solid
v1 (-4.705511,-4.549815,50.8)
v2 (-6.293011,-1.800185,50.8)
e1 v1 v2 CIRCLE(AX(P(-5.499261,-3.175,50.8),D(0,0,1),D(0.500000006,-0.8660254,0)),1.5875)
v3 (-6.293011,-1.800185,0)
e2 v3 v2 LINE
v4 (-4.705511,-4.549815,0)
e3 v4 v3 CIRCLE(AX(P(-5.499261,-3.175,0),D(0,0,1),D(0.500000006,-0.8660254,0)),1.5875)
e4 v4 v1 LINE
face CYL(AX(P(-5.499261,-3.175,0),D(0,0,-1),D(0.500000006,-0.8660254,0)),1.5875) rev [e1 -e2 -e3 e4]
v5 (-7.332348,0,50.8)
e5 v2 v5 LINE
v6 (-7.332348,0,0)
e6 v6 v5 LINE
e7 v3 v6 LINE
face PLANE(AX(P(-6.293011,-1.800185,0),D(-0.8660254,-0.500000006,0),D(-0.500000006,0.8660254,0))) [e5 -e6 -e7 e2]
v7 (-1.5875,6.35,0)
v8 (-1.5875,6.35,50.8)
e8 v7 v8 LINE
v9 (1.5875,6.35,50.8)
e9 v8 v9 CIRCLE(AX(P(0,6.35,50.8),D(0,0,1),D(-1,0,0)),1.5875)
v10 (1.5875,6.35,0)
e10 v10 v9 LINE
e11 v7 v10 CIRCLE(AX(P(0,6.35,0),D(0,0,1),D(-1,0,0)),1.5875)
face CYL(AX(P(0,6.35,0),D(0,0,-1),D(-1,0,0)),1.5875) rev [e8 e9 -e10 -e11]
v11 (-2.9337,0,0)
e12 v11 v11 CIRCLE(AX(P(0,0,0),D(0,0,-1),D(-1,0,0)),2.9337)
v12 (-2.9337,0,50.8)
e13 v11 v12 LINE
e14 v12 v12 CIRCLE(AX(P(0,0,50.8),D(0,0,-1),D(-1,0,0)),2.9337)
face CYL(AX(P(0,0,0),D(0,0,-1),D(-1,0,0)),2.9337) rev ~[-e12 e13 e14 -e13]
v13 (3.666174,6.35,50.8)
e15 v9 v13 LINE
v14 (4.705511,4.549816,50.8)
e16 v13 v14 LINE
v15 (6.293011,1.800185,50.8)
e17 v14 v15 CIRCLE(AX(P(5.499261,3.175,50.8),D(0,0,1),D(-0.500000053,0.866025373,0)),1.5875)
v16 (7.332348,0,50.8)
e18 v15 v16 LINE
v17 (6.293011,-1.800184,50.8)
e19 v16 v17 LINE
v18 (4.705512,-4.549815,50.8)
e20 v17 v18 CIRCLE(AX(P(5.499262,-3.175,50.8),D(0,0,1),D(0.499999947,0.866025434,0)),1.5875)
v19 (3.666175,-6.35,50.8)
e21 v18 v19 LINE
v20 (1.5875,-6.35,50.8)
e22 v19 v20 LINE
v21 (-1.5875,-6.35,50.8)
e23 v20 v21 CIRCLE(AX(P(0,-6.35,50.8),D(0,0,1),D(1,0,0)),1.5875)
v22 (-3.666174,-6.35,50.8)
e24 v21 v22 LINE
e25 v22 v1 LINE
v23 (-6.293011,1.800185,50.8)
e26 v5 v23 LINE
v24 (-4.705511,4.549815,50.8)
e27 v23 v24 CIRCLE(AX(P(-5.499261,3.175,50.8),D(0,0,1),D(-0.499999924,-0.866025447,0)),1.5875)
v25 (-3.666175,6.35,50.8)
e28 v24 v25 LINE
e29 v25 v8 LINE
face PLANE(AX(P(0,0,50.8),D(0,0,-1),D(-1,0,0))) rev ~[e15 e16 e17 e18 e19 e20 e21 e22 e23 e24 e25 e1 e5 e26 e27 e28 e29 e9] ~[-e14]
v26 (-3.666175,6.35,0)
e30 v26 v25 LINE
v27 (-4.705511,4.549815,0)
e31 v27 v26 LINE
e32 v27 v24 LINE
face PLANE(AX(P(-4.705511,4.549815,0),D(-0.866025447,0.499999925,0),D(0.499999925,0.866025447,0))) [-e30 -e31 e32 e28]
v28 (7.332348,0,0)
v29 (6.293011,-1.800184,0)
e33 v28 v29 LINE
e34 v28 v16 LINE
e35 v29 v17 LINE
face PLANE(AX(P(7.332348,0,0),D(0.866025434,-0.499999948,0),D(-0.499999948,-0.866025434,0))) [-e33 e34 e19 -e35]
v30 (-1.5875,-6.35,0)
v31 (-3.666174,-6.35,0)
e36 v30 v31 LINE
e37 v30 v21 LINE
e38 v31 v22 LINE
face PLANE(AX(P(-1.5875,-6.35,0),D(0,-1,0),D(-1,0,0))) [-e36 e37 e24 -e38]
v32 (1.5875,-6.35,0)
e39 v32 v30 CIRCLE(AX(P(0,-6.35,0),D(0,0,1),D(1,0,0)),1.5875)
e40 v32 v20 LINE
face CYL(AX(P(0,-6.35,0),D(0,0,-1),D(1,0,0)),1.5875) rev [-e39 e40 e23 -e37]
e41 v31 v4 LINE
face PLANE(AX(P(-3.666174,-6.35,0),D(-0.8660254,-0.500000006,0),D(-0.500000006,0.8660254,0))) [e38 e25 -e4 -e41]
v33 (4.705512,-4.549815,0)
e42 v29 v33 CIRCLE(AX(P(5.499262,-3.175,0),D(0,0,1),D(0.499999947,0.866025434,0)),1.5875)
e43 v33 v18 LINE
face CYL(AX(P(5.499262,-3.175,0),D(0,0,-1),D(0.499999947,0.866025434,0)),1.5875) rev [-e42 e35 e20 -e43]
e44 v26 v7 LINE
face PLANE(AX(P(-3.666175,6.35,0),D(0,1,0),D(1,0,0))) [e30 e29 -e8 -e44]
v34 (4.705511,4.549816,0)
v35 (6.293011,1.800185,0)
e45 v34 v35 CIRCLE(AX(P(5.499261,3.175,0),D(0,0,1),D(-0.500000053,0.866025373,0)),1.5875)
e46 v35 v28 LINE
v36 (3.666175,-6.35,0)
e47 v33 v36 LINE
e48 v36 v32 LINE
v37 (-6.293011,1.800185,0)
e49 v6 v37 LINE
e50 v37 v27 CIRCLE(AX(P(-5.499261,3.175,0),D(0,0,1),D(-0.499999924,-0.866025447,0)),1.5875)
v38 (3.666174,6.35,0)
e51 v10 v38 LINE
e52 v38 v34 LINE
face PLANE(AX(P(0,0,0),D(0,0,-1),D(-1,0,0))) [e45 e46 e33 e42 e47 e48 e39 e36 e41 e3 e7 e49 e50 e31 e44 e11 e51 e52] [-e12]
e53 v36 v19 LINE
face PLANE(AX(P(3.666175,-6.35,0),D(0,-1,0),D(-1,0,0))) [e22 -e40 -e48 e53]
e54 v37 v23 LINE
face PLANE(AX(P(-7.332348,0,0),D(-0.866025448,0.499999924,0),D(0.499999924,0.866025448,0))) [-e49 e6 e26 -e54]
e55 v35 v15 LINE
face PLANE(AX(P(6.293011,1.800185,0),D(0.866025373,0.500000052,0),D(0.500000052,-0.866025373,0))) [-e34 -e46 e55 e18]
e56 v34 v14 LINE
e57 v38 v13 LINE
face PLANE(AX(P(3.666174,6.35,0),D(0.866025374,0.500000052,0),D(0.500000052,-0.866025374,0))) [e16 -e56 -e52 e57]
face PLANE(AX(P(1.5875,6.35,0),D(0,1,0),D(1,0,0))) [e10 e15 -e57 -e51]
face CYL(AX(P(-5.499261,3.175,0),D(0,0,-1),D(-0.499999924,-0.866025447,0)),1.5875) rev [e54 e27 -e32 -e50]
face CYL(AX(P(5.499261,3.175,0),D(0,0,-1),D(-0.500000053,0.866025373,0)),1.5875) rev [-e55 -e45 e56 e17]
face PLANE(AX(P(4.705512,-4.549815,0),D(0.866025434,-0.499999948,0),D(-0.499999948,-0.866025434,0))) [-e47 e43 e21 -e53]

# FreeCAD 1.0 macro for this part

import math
import FreeCAD as App
import Part
import Sketcher

V = App.Vector
Q = App.Units.Quantity

doc = App.newDocument("Part")
body = doc.addObject("PartDesign::Body", "Body")

# Sketch on XY plane
sketch1 = body.newObject("Sketcher::SketchObject", "Sketch")
sketch1.AttachmentSupport = (doc.getObject("XY_Plane"), [""])
sketch1.MapMode = "FlatFace"
sketch1.addGeometry([
    Part.LineSegment(V(4.705512, -4.549815, 0), V(3.666175, -6.35, 0)),  # 0
    Part.LineSegment(V(3.666175, -6.35, 0), V(1.5875, -6.35, 0)),  # 1
    Part.ArcOfCircle(Part.Circle(V(0, -6.35, 0), V(0, 0, 1), 1.5875), math.radians(0), math.radians(180)),  # 2
    Part.LineSegment(V(-1.5875, -6.35, 0), V(-3.666174, -6.35, 0)),  # 3
    Part.LineSegment(V(-3.666174, -6.35, 0), V(-4.705511, -4.549815, 0)),  # 4
    Part.ArcOfCircle(Part.Circle(V(-5.499261, -3.175, 0), V(0, 0, 1), 1.5875), math.radians(-60), math.radians(120)),  # 5
    Part.LineSegment(V(-6.293011, -1.800185, 0), V(-7.332348, 0, 0)),  # 6
    Part.LineSegment(V(-7.332348, 0, 0), V(-6.293011, 1.800185, 0)),  # 7
    Part.ArcOfCircle(Part.Circle(V(-5.499261, 3.175, 0), V(0, 0, 1), 1.5875), math.radians(-119.999995), math.radians(60.000005)),  # 8
    Part.LineSegment(V(-4.705511, 4.549815, 0), V(-3.666175, 6.35, 0)),  # 9
    Part.LineSegment(V(-3.666175, 6.35, 0), V(-1.5875, 6.35, 0)),  # 10
    Part.ArcOfCircle(Part.Circle(V(0, 6.35, 0), V(0, 0, 1), 1.5875), math.radians(180), math.radians(360)),  # 11
    Part.LineSegment(V(1.5875, 6.35, 0), V(3.666174, 6.35, 0)),  # 12
    Part.LineSegment(V(3.666174, 6.35, 0), V(4.705511, 4.549816, 0)),  # 13
    Part.ArcOfCircle(Part.Circle(V(5.499261, 3.175, 0), V(0, 0, 1), 1.5875), math.radians(120.000003), math.radians(300.000003)),  # 14
    Part.LineSegment(V(6.293011, 1.800185, 0), V(7.332348, 0, 0)),  # 15
    Part.LineSegment(V(7.332348, 0, 0), V(6.293011, -1.800184, 0)),  # 16
    Part.ArcOfCircle(Part.Circle(V(5.499262, -3.175, 0), V(0, 0, 1), 1.5875), math.radians(60.000003), math.radians(240.000004)),  # 17
    Part.Circle(V(0, 0, 0), V(0, 0, 1), 2.9337),  # 18
], False)
sketch1.addConstraint([
    Sketcher.Constraint("Coincident", 0, 2, 1, 1),
    Sketcher.Constraint("Coincident", 1, 2, 2, 1),
    Sketcher.Constraint("Coincident", 2, 2, 3, 1),
    Sketcher.Constraint("Coincident", 3, 2, 4, 1),
    Sketcher.Constraint("Coincident", 4, 2, 5, 1),
    Sketcher.Constraint("Coincident", 5, 2, 6, 1),
    Sketcher.Constraint("Coincident", 6, 2, 7, 1),
    Sketcher.Constraint("Coincident", 7, 2, 8, 1),
    Sketcher.Constraint("Coincident", 8, 2, 9, 1),
    Sketcher.Constraint("Coincident", 9, 2, 10, 1),
    Sketcher.Constraint("Coincident", 10, 2, 11, 1),
    Sketcher.Constraint("Coincident", 11, 2, 12, 1),
    Sketcher.Constraint("Coincident", 12, 2, 13, 1),
    Sketcher.Constraint("Coincident", 13, 2, 14, 1),
    Sketcher.Constraint("Coincident", 14, 2, 15, 1),
    Sketcher.Constraint("Coincident", 15, 2, 16, 1),
    Sketcher.Constraint("Coincident", 16, 2, 17, 1),
    Sketcher.Constraint("Coincident", 17, 2, 0, 1),
    Sketcher.Constraint("Horizontal", 1),
    Sketcher.Constraint("Horizontal", 3),
    Sketcher.Constraint("Horizontal", 10),
    Sketcher.Constraint("Horizontal", 12),
    Sketcher.Constraint("Coincident", 18, 3, -1, 1),
    Sketcher.Constraint("Equal", 2, 5),
    Sketcher.Constraint("Equal", 5, 8),
    Sketcher.Constraint("Equal", 8, 11),
    Sketcher.Constraint("Equal", 11, 14),
    Sketcher.Constraint("Equal", 14, 17),
    Sketcher.Constraint("Symmetric", 2, 3, 11, 3, -1, 1),
    Sketcher.Constraint("Symmetric", 5, 3, 14, 3, -1, 1),
    Sketcher.Constraint("Symmetric", 8, 3, 17, 3, -1, 1),
    Sketcher.Constraint("Symmetric", 0, 2, 9, 2, -1, 1),
    Sketcher.Constraint("Symmetric", 3, 2, 12, 2, -1, 1),
    Sketcher.Constraint("Symmetric", 6, 2, 15, 2, -1, 1),
    Sketcher.Constraint("Symmetric", 8, 3, 14, 3, -2),
    Sketcher.Constraint("Symmetric", 1, 2, 2, 2, -2),
    Sketcher.Constraint("PointOnObject", 6, 2, -1),
    Sketcher.Constraint("Parallel", 4, 6),
    Sketcher.Constraint("Parallel", 0, 7),
    Sketcher.Constraint("Parallel", 7, 9),
    Sketcher.Constraint("Parallel", 6, 13),
    Sketcher.Constraint("Parallel", 13, 15),
    Sketcher.Constraint("Parallel", 9, 16),
    Sketcher.Constraint("Horizontal", 2, 3, 0, 2),
    Sketcher.Constraint("Horizontal", 8, 2, 13, 2),
    Sketcher.Constraint("Horizontal", 7, 2, 14, 2),
    Sketcher.Constraint("Equal", 4, 6),
    Sketcher.Constraint("Diameter", 18, Q("0.231 in")),
    Sketcher.Constraint("Angle", 0, Q("-119.999997 deg")),
    Sketcher.Constraint("Radius", 2, Q("0.0625 in")),
    Sketcher.Constraint("DistanceY", 2, 3, 11, 3, Q("0.5 in")),
    Sketcher.Constraint("DistanceY", 5, 3, 8, 3, Q("0.25 in")),
    Sketcher.Constraint("DistanceX", 5, 3, 4, 2, Q("0.03125 in")),
    Sketcher.Constraint("DistanceX", 1, 2, 1, 1, Q("2.078674 mm")),
])
pad1 = body.newObject("PartDesign::Pad", "Pad")
pad1.Profile = sketch1
pad1.Length = Q("2 in")

doc.recompute()
